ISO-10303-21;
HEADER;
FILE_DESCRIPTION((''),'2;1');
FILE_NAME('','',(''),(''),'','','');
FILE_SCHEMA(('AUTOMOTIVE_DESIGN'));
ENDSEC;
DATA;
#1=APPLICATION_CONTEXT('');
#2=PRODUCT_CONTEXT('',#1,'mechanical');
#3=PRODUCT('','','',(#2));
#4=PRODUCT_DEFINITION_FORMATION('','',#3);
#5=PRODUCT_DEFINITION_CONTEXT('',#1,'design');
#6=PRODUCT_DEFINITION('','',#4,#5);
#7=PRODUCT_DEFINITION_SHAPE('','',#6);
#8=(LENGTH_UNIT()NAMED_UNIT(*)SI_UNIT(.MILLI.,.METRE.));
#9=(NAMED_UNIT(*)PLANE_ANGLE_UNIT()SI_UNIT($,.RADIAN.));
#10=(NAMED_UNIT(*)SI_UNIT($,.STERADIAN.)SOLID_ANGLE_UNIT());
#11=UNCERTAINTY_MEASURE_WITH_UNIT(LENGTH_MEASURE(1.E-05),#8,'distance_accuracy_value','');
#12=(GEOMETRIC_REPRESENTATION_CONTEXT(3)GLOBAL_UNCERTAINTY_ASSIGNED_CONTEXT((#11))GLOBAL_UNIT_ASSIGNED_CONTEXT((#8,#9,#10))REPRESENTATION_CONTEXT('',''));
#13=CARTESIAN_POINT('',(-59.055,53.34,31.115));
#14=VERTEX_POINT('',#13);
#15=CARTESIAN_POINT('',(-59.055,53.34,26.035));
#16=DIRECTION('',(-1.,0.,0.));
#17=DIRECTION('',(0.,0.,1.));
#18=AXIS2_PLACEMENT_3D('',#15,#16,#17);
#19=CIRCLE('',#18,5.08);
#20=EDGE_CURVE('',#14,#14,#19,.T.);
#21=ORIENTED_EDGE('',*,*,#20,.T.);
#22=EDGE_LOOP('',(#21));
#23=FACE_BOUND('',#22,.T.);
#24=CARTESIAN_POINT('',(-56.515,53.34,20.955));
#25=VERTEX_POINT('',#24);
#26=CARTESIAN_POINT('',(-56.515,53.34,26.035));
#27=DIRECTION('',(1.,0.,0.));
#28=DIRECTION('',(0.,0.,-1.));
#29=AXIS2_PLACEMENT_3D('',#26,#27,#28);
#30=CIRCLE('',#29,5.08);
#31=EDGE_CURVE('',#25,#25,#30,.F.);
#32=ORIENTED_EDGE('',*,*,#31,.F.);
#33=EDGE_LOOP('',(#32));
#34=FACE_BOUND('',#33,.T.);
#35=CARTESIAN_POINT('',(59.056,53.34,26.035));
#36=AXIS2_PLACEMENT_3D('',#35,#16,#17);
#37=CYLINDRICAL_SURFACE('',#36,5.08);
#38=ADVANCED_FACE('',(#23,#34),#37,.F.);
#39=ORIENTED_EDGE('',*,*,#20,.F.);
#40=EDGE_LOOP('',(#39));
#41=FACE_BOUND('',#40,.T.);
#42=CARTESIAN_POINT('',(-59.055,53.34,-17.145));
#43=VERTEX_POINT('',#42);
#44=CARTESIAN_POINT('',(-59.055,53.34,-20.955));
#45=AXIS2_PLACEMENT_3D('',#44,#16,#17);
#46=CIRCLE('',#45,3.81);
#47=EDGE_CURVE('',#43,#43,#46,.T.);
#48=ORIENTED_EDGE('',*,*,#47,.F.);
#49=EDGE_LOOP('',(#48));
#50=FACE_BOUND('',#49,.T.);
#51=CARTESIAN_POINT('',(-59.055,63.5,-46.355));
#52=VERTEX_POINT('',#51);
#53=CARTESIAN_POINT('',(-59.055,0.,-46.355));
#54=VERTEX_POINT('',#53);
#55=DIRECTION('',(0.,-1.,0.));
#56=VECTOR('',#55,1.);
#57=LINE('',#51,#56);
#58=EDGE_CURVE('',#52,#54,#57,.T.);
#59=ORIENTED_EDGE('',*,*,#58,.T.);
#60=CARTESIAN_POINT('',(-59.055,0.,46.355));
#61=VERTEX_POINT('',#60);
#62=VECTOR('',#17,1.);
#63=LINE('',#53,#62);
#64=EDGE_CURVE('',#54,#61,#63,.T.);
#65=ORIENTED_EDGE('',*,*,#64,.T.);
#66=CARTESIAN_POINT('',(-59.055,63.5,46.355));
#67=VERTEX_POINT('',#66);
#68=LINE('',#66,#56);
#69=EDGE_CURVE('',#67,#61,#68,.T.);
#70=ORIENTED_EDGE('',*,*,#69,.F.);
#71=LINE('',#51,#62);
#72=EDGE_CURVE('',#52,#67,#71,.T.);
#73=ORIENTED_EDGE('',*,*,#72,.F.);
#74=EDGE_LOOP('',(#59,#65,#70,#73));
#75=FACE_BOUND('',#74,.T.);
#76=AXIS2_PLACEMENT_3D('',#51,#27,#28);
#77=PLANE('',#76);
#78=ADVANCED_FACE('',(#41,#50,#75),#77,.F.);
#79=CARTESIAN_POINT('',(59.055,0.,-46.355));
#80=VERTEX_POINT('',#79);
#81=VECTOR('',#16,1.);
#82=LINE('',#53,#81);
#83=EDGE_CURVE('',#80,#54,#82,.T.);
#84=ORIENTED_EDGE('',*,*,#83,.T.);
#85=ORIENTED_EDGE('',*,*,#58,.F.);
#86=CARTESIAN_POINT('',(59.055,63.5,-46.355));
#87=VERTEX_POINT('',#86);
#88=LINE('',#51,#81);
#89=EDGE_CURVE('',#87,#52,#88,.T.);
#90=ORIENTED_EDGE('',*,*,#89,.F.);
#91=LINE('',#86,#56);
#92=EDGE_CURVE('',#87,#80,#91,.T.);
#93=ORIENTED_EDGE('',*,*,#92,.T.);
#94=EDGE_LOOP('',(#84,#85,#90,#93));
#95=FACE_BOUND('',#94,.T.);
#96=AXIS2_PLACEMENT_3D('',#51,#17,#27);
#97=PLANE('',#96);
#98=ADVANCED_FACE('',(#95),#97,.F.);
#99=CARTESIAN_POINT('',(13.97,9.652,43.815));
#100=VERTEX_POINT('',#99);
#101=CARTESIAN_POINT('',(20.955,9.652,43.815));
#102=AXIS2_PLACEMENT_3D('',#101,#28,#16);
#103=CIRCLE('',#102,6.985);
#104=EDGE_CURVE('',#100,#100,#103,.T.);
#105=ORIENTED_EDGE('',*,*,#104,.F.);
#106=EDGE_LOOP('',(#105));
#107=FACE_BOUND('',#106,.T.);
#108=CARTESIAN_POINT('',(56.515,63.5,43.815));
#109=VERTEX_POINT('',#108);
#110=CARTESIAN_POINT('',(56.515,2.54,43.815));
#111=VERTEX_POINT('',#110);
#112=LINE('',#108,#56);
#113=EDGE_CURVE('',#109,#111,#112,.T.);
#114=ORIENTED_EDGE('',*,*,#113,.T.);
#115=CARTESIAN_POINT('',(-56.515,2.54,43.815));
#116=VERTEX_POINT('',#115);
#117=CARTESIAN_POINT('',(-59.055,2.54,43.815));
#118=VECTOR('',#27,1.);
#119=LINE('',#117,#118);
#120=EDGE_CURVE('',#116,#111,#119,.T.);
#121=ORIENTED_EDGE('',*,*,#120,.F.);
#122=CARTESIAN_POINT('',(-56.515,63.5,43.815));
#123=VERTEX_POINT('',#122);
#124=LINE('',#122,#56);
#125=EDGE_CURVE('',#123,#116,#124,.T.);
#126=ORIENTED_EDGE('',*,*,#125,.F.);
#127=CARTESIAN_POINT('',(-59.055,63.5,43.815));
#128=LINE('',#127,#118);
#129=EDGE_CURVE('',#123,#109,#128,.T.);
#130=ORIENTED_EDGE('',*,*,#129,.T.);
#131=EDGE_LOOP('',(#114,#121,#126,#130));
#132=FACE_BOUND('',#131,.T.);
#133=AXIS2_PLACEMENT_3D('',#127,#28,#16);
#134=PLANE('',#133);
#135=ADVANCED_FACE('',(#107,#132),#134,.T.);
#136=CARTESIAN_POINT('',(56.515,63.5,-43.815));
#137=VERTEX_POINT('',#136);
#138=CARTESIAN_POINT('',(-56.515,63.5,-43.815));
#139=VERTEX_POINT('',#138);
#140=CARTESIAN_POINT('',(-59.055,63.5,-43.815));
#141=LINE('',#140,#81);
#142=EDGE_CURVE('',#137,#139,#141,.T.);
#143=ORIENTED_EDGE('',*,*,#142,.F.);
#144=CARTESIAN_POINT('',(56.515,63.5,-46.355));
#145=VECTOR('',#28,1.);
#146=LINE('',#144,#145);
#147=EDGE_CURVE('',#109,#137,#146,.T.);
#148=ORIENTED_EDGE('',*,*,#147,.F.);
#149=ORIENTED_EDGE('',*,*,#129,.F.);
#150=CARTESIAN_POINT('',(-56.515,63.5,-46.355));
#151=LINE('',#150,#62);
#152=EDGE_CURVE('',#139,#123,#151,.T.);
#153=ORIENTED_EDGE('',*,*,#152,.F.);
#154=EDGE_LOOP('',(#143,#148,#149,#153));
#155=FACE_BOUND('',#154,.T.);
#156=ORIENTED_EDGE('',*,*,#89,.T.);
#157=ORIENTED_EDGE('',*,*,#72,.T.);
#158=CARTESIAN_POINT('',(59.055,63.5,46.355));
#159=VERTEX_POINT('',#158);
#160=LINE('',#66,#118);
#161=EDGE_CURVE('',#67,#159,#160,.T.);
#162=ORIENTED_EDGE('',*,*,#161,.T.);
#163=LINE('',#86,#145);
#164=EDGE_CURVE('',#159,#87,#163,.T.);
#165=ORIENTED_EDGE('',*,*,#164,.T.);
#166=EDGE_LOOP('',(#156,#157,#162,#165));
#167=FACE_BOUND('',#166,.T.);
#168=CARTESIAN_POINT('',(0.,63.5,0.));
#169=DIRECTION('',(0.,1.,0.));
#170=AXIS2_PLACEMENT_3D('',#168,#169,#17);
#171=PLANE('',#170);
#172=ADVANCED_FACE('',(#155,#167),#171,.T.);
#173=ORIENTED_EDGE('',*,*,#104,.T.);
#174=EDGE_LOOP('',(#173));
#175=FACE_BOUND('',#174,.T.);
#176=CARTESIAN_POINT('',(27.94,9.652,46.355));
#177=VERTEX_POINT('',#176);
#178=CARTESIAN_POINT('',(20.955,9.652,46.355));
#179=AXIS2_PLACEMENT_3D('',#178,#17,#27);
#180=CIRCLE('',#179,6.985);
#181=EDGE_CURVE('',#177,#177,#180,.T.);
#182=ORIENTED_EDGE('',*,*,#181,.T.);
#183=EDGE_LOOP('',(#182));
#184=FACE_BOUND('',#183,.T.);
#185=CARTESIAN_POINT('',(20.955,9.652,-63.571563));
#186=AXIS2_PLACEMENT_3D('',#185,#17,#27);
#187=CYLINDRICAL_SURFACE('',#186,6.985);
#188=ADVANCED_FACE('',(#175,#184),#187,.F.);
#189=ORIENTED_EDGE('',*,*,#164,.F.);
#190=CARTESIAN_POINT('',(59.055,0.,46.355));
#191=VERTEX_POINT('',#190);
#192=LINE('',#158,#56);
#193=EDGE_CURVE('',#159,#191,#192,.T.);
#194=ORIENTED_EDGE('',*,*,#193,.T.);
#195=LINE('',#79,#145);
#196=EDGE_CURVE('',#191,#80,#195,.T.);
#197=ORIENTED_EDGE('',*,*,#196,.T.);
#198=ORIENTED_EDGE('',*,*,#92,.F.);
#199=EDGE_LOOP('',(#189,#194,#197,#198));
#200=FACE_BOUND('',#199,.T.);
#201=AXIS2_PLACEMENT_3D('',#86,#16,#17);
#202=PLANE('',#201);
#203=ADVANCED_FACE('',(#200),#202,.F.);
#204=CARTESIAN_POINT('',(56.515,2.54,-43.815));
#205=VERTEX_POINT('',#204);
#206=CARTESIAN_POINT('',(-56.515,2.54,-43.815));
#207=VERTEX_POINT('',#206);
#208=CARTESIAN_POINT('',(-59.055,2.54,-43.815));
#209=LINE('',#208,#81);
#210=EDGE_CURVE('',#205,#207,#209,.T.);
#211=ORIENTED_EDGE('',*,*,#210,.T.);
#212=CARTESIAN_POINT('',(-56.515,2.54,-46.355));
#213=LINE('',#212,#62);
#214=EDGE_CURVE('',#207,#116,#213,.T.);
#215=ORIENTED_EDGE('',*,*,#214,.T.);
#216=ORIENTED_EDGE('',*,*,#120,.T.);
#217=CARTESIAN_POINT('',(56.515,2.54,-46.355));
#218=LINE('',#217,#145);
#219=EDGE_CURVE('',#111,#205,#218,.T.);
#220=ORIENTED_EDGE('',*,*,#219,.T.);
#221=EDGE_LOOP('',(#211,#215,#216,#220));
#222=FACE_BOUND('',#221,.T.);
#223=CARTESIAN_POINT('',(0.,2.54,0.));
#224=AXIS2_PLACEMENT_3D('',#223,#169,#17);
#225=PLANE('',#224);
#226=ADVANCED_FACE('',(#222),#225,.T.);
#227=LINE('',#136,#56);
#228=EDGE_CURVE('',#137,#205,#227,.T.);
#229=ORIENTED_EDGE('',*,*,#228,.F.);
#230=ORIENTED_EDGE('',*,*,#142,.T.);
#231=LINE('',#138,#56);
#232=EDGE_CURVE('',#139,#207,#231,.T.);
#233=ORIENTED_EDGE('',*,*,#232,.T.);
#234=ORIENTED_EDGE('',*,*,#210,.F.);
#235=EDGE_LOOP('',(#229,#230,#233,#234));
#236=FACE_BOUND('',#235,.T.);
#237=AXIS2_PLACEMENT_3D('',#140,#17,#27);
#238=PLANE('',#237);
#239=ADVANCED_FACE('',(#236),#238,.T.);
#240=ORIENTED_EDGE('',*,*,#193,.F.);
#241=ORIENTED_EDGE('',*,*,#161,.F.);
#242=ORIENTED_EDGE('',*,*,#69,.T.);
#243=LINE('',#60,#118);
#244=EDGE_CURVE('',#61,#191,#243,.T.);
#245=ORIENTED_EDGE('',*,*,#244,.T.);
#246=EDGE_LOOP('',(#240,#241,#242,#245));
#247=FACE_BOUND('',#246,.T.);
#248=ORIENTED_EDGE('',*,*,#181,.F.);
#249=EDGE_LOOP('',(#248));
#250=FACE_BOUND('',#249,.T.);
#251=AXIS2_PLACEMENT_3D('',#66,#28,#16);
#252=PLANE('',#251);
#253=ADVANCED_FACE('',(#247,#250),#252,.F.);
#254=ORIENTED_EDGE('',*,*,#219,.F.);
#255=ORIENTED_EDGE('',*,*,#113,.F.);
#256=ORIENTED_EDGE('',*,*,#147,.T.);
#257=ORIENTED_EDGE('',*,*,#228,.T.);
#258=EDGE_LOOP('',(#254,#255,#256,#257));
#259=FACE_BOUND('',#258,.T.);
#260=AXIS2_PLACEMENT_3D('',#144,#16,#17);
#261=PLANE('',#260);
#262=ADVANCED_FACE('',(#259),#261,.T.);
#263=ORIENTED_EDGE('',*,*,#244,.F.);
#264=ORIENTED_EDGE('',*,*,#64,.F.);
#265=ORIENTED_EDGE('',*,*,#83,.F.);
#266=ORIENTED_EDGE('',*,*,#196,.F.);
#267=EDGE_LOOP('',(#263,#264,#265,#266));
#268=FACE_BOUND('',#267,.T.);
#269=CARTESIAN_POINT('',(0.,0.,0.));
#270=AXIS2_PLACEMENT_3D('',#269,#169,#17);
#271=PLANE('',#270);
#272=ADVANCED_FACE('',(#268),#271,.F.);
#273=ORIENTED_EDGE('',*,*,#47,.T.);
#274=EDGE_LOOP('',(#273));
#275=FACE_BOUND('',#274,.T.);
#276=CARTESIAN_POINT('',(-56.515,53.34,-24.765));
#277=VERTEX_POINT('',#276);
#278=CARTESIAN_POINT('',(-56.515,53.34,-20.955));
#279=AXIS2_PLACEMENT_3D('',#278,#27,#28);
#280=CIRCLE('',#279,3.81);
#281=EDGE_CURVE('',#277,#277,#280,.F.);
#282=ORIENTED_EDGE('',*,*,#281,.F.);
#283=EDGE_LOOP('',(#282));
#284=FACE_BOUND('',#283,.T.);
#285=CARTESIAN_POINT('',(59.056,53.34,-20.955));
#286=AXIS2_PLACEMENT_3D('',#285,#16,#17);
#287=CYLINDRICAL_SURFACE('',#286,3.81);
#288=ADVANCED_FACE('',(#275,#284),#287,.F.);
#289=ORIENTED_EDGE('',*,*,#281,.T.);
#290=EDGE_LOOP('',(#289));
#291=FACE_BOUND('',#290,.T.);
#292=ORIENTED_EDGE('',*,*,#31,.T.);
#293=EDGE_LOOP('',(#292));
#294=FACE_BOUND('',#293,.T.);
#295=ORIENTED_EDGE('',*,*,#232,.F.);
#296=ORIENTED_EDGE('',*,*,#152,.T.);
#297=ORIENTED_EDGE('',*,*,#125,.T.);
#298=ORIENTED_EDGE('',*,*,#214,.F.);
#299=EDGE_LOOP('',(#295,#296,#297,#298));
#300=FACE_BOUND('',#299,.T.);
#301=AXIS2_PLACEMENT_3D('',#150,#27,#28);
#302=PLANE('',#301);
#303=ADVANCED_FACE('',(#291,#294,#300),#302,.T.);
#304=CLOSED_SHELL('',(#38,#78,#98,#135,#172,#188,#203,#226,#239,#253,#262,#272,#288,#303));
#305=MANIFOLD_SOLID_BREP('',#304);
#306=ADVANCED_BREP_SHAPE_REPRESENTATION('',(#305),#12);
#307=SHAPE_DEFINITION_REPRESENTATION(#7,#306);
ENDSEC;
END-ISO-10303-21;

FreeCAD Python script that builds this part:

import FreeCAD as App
import Part
import Sketcher
Q = App.Units.Quantity


def faces_at(feature, points):
    """Names of the faces that lie closest to the given points."""
    faces = feature.Shape.Faces
    near = lambda p: min(range(len(faces)), key=lambda i: faces[i].distToShape(Part.Vertex(*p))[0])
    return sorted({f"Face{near(p) + 1}" for p in points})

doc = App.newDocument("Part")
params = doc.addObject("Spreadsheet::Sheet", "Params")
for row, (alias, value) in enumerate([
    ("sketch1_width", "4.65 in"),
    ("sketch1_height", "3.65 in"),
    ("pad1_length", "2.5 in"),
    ("thickness_wall", "0.1 in"),
    ("sketch2_diameter", "0.55 in"),
    ("pocket1_length", "3.55 in"),
    ("sketch3_diameter", "0.4 in"),
    ("sketch4_diameter", "0.3 in"),
], start=1):
    params.set(f"A{row}", alias)
    params.set(f"B{row}", "=" + value)
    params.setAlias(f"B{row}", alias)

body = doc.addObject("PartDesign::Body", "Body")

# Sketch on XZ plane
sketch1 = doc.addObject("Sketcher::SketchObject", "Sketch")
body.addObject(sketch1)
sketch1.AttachmentSupport = (doc.XZ_Plane, [""])
sketch1.MapMode = "FlatFace"
sketch1.addGeometry(Part.LineSegment(App.Vector(-59.055, -46.355, 0), App.Vector(-59.055, 46.355, 0)), False)
sketch1.addGeometry(Part.LineSegment(App.Vector(-59.055, 46.355, 0), App.Vector(59.055, 46.355, 0)), False)
sketch1.addGeometry(Part.LineSegment(App.Vector(59.055, 46.355, 0), App.Vector(59.055, -46.355, 0)), False)
sketch1.addGeometry(Part.LineSegment(App.Vector(59.055, -46.355, 0), App.Vector(-59.055, -46.355, 0)), False)
sketch1.addConstraint(Sketcher.Constraint("Coincident", 0, 2, 1, 1))
sketch1.addConstraint(Sketcher.Constraint("Coincident", 1, 2, 2, 1))
sketch1.addConstraint(Sketcher.Constraint("Coincident", 2, 2, 3, 1))
sketch1.addConstraint(Sketcher.Constraint("Coincident", 3, 2, 0, 1))
sketch1.addConstraint(Sketcher.Constraint("Vertical", 0))
sketch1.addConstraint(Sketcher.Constraint("Horizontal", 1))
sketch1.addConstraint(Sketcher.Constraint("Vertical", 2))
sketch1.addConstraint(Sketcher.Constraint("Horizontal", 3))
sketch1.addConstraint(Sketcher.Constraint("Symmetric", 0, 2, 2, 2, -1, 1))
sketch1.addConstraint(Sketcher.Constraint("DistanceX", 1, 1, 1, 2, Q("4.65 in")))
sketch1.addConstraint(Sketcher.Constraint("DistanceY", 0, 1, 0, 2, Q("3.65 in")))
sketch1.setExpression("Constraints[9]", "Params.sketch1_width")
sketch1.setExpression("Constraints[10]", "Params.sketch1_height")
pad1 = doc.addObject("PartDesign::Pad", "Pad")
body.addObject(pad1)
pad1.Profile = sketch1
pad1.setExpression("Length", "Params.pad1_length")
pad1.Reversed = True
doc.recompute()

thickness = doc.addObject("PartDesign::Thickness", "Thickness")
body.addObject(thickness)
thickness.Base = (pad1, faces_at(pad1, [(0, 63.5, 0)]))
thickness.setExpression("Value", "Params.thickness_wall")
thickness.Reversed = True
thickness.Join = "Intersection"

# Sketch on XY plane
sketch2 = doc.addObject("Sketcher::SketchObject", "Sketch001")
body.addObject(sketch2)
sketch2.AttachmentSupport = (doc.XY_Plane, [""])
sketch2.MapMode = "FlatFace"
sketch2.AttachmentOffset = App.Placement(App.Vector(0, 0, 1.825 * 25.4), App.Rotation())
sketch2.addGeometry(Part.Circle(App.Vector(20.955, 9.652, 0), App.Vector(0, 0, 1), 6.985), False)
sketch2.addConstraint(Sketcher.Constraint("Diameter", 0, Q("0.55 in")))
sketch2.addConstraint(Sketcher.Constraint("DistanceY", -1, 1, 0, 3, Q("0.38 in")))
sketch2.addConstraint(Sketcher.Constraint("DistanceX", -1, 1, 0, 3, Q("0.825 in")))
sketch2.setExpression("Constraints[0]", "Params.sketch2_diameter")
pocket1 = doc.addObject("PartDesign::Pocket", "Pocket")
body.addObject(pocket1)
pocket1.Profile = sketch2
pocket1.setExpression("Length", "Params.pocket1_length")

# Sketch on YZ plane
sketch3 = doc.addObject("Sketcher::SketchObject", "Sketch002")
body.addObject(sketch3)
sketch3.AttachmentSupport = (doc.YZ_Plane, [""])
sketch3.MapMode = "FlatFace"
sketch3.AttachmentOffset = App.Placement(App.Vector(0, 0, -2.325 * 25.4), App.Rotation())
sketch3.addGeometry(Part.Circle(App.Vector(53.34, 26.035, 0), App.Vector(0, 0, 1), 5.08), False)
sketch3.addConstraint(Sketcher.Constraint("Diameter", 0, Q("0.4 in")))
sketch3.addConstraint(Sketcher.Constraint("DistanceX", -1, 1, 0, 3, Q("2.1 in")))
sketch3.addConstraint(Sketcher.Constraint("DistanceY", -1, 1, 0, 3, Q("1.025 in")))
sketch3.setExpression("Constraints[0]", "Params.sketch3_diameter")
pocket2 = doc.addObject("PartDesign::Pocket", "Pocket001")
body.addObject(pocket2)
pocket2.Profile = sketch3
pocket2.Type = "UpToFirst"
pocket2.Reversed = True

# Sketch on YZ plane
sketch4 = doc.addObject("Sketcher::SketchObject", "Sketch003")
body.addObject(sketch4)
sketch4.AttachmentSupport = (doc.YZ_Plane, [""])
sketch4.MapMode = "FlatFace"
sketch4.AttachmentOffset = App.Placement(App.Vector(0, 0, -2.325 * 25.4), App.Rotation())
sketch4.addGeometry(Part.Circle(App.Vector(53.34, -20.955, 0), App.Vector(0, 0, 1), 3.81), False)
sketch4.addConstraint(Sketcher.Constraint("Diameter", 0, Q("0.3 in")))
sketch4.addConstraint(Sketcher.Constraint("DistanceX", -1, 1, 0, 3, Q("2.1 in")))
sketch4.addConstraint(Sketcher.Constraint("DistanceY", 0, 3, -1, 1, Q("0.825 in")))
sketch4.setExpression("Constraints[0]", "Params.sketch4_diameter")
pocket3 = doc.addObject("PartDesign::Pocket", "Pocket002")
body.addObject(pocket3)
pocket3.Profile = sketch4
pocket3.Type = "UpToFirst"
pocket3.Reversed = True

doc.recompute()
